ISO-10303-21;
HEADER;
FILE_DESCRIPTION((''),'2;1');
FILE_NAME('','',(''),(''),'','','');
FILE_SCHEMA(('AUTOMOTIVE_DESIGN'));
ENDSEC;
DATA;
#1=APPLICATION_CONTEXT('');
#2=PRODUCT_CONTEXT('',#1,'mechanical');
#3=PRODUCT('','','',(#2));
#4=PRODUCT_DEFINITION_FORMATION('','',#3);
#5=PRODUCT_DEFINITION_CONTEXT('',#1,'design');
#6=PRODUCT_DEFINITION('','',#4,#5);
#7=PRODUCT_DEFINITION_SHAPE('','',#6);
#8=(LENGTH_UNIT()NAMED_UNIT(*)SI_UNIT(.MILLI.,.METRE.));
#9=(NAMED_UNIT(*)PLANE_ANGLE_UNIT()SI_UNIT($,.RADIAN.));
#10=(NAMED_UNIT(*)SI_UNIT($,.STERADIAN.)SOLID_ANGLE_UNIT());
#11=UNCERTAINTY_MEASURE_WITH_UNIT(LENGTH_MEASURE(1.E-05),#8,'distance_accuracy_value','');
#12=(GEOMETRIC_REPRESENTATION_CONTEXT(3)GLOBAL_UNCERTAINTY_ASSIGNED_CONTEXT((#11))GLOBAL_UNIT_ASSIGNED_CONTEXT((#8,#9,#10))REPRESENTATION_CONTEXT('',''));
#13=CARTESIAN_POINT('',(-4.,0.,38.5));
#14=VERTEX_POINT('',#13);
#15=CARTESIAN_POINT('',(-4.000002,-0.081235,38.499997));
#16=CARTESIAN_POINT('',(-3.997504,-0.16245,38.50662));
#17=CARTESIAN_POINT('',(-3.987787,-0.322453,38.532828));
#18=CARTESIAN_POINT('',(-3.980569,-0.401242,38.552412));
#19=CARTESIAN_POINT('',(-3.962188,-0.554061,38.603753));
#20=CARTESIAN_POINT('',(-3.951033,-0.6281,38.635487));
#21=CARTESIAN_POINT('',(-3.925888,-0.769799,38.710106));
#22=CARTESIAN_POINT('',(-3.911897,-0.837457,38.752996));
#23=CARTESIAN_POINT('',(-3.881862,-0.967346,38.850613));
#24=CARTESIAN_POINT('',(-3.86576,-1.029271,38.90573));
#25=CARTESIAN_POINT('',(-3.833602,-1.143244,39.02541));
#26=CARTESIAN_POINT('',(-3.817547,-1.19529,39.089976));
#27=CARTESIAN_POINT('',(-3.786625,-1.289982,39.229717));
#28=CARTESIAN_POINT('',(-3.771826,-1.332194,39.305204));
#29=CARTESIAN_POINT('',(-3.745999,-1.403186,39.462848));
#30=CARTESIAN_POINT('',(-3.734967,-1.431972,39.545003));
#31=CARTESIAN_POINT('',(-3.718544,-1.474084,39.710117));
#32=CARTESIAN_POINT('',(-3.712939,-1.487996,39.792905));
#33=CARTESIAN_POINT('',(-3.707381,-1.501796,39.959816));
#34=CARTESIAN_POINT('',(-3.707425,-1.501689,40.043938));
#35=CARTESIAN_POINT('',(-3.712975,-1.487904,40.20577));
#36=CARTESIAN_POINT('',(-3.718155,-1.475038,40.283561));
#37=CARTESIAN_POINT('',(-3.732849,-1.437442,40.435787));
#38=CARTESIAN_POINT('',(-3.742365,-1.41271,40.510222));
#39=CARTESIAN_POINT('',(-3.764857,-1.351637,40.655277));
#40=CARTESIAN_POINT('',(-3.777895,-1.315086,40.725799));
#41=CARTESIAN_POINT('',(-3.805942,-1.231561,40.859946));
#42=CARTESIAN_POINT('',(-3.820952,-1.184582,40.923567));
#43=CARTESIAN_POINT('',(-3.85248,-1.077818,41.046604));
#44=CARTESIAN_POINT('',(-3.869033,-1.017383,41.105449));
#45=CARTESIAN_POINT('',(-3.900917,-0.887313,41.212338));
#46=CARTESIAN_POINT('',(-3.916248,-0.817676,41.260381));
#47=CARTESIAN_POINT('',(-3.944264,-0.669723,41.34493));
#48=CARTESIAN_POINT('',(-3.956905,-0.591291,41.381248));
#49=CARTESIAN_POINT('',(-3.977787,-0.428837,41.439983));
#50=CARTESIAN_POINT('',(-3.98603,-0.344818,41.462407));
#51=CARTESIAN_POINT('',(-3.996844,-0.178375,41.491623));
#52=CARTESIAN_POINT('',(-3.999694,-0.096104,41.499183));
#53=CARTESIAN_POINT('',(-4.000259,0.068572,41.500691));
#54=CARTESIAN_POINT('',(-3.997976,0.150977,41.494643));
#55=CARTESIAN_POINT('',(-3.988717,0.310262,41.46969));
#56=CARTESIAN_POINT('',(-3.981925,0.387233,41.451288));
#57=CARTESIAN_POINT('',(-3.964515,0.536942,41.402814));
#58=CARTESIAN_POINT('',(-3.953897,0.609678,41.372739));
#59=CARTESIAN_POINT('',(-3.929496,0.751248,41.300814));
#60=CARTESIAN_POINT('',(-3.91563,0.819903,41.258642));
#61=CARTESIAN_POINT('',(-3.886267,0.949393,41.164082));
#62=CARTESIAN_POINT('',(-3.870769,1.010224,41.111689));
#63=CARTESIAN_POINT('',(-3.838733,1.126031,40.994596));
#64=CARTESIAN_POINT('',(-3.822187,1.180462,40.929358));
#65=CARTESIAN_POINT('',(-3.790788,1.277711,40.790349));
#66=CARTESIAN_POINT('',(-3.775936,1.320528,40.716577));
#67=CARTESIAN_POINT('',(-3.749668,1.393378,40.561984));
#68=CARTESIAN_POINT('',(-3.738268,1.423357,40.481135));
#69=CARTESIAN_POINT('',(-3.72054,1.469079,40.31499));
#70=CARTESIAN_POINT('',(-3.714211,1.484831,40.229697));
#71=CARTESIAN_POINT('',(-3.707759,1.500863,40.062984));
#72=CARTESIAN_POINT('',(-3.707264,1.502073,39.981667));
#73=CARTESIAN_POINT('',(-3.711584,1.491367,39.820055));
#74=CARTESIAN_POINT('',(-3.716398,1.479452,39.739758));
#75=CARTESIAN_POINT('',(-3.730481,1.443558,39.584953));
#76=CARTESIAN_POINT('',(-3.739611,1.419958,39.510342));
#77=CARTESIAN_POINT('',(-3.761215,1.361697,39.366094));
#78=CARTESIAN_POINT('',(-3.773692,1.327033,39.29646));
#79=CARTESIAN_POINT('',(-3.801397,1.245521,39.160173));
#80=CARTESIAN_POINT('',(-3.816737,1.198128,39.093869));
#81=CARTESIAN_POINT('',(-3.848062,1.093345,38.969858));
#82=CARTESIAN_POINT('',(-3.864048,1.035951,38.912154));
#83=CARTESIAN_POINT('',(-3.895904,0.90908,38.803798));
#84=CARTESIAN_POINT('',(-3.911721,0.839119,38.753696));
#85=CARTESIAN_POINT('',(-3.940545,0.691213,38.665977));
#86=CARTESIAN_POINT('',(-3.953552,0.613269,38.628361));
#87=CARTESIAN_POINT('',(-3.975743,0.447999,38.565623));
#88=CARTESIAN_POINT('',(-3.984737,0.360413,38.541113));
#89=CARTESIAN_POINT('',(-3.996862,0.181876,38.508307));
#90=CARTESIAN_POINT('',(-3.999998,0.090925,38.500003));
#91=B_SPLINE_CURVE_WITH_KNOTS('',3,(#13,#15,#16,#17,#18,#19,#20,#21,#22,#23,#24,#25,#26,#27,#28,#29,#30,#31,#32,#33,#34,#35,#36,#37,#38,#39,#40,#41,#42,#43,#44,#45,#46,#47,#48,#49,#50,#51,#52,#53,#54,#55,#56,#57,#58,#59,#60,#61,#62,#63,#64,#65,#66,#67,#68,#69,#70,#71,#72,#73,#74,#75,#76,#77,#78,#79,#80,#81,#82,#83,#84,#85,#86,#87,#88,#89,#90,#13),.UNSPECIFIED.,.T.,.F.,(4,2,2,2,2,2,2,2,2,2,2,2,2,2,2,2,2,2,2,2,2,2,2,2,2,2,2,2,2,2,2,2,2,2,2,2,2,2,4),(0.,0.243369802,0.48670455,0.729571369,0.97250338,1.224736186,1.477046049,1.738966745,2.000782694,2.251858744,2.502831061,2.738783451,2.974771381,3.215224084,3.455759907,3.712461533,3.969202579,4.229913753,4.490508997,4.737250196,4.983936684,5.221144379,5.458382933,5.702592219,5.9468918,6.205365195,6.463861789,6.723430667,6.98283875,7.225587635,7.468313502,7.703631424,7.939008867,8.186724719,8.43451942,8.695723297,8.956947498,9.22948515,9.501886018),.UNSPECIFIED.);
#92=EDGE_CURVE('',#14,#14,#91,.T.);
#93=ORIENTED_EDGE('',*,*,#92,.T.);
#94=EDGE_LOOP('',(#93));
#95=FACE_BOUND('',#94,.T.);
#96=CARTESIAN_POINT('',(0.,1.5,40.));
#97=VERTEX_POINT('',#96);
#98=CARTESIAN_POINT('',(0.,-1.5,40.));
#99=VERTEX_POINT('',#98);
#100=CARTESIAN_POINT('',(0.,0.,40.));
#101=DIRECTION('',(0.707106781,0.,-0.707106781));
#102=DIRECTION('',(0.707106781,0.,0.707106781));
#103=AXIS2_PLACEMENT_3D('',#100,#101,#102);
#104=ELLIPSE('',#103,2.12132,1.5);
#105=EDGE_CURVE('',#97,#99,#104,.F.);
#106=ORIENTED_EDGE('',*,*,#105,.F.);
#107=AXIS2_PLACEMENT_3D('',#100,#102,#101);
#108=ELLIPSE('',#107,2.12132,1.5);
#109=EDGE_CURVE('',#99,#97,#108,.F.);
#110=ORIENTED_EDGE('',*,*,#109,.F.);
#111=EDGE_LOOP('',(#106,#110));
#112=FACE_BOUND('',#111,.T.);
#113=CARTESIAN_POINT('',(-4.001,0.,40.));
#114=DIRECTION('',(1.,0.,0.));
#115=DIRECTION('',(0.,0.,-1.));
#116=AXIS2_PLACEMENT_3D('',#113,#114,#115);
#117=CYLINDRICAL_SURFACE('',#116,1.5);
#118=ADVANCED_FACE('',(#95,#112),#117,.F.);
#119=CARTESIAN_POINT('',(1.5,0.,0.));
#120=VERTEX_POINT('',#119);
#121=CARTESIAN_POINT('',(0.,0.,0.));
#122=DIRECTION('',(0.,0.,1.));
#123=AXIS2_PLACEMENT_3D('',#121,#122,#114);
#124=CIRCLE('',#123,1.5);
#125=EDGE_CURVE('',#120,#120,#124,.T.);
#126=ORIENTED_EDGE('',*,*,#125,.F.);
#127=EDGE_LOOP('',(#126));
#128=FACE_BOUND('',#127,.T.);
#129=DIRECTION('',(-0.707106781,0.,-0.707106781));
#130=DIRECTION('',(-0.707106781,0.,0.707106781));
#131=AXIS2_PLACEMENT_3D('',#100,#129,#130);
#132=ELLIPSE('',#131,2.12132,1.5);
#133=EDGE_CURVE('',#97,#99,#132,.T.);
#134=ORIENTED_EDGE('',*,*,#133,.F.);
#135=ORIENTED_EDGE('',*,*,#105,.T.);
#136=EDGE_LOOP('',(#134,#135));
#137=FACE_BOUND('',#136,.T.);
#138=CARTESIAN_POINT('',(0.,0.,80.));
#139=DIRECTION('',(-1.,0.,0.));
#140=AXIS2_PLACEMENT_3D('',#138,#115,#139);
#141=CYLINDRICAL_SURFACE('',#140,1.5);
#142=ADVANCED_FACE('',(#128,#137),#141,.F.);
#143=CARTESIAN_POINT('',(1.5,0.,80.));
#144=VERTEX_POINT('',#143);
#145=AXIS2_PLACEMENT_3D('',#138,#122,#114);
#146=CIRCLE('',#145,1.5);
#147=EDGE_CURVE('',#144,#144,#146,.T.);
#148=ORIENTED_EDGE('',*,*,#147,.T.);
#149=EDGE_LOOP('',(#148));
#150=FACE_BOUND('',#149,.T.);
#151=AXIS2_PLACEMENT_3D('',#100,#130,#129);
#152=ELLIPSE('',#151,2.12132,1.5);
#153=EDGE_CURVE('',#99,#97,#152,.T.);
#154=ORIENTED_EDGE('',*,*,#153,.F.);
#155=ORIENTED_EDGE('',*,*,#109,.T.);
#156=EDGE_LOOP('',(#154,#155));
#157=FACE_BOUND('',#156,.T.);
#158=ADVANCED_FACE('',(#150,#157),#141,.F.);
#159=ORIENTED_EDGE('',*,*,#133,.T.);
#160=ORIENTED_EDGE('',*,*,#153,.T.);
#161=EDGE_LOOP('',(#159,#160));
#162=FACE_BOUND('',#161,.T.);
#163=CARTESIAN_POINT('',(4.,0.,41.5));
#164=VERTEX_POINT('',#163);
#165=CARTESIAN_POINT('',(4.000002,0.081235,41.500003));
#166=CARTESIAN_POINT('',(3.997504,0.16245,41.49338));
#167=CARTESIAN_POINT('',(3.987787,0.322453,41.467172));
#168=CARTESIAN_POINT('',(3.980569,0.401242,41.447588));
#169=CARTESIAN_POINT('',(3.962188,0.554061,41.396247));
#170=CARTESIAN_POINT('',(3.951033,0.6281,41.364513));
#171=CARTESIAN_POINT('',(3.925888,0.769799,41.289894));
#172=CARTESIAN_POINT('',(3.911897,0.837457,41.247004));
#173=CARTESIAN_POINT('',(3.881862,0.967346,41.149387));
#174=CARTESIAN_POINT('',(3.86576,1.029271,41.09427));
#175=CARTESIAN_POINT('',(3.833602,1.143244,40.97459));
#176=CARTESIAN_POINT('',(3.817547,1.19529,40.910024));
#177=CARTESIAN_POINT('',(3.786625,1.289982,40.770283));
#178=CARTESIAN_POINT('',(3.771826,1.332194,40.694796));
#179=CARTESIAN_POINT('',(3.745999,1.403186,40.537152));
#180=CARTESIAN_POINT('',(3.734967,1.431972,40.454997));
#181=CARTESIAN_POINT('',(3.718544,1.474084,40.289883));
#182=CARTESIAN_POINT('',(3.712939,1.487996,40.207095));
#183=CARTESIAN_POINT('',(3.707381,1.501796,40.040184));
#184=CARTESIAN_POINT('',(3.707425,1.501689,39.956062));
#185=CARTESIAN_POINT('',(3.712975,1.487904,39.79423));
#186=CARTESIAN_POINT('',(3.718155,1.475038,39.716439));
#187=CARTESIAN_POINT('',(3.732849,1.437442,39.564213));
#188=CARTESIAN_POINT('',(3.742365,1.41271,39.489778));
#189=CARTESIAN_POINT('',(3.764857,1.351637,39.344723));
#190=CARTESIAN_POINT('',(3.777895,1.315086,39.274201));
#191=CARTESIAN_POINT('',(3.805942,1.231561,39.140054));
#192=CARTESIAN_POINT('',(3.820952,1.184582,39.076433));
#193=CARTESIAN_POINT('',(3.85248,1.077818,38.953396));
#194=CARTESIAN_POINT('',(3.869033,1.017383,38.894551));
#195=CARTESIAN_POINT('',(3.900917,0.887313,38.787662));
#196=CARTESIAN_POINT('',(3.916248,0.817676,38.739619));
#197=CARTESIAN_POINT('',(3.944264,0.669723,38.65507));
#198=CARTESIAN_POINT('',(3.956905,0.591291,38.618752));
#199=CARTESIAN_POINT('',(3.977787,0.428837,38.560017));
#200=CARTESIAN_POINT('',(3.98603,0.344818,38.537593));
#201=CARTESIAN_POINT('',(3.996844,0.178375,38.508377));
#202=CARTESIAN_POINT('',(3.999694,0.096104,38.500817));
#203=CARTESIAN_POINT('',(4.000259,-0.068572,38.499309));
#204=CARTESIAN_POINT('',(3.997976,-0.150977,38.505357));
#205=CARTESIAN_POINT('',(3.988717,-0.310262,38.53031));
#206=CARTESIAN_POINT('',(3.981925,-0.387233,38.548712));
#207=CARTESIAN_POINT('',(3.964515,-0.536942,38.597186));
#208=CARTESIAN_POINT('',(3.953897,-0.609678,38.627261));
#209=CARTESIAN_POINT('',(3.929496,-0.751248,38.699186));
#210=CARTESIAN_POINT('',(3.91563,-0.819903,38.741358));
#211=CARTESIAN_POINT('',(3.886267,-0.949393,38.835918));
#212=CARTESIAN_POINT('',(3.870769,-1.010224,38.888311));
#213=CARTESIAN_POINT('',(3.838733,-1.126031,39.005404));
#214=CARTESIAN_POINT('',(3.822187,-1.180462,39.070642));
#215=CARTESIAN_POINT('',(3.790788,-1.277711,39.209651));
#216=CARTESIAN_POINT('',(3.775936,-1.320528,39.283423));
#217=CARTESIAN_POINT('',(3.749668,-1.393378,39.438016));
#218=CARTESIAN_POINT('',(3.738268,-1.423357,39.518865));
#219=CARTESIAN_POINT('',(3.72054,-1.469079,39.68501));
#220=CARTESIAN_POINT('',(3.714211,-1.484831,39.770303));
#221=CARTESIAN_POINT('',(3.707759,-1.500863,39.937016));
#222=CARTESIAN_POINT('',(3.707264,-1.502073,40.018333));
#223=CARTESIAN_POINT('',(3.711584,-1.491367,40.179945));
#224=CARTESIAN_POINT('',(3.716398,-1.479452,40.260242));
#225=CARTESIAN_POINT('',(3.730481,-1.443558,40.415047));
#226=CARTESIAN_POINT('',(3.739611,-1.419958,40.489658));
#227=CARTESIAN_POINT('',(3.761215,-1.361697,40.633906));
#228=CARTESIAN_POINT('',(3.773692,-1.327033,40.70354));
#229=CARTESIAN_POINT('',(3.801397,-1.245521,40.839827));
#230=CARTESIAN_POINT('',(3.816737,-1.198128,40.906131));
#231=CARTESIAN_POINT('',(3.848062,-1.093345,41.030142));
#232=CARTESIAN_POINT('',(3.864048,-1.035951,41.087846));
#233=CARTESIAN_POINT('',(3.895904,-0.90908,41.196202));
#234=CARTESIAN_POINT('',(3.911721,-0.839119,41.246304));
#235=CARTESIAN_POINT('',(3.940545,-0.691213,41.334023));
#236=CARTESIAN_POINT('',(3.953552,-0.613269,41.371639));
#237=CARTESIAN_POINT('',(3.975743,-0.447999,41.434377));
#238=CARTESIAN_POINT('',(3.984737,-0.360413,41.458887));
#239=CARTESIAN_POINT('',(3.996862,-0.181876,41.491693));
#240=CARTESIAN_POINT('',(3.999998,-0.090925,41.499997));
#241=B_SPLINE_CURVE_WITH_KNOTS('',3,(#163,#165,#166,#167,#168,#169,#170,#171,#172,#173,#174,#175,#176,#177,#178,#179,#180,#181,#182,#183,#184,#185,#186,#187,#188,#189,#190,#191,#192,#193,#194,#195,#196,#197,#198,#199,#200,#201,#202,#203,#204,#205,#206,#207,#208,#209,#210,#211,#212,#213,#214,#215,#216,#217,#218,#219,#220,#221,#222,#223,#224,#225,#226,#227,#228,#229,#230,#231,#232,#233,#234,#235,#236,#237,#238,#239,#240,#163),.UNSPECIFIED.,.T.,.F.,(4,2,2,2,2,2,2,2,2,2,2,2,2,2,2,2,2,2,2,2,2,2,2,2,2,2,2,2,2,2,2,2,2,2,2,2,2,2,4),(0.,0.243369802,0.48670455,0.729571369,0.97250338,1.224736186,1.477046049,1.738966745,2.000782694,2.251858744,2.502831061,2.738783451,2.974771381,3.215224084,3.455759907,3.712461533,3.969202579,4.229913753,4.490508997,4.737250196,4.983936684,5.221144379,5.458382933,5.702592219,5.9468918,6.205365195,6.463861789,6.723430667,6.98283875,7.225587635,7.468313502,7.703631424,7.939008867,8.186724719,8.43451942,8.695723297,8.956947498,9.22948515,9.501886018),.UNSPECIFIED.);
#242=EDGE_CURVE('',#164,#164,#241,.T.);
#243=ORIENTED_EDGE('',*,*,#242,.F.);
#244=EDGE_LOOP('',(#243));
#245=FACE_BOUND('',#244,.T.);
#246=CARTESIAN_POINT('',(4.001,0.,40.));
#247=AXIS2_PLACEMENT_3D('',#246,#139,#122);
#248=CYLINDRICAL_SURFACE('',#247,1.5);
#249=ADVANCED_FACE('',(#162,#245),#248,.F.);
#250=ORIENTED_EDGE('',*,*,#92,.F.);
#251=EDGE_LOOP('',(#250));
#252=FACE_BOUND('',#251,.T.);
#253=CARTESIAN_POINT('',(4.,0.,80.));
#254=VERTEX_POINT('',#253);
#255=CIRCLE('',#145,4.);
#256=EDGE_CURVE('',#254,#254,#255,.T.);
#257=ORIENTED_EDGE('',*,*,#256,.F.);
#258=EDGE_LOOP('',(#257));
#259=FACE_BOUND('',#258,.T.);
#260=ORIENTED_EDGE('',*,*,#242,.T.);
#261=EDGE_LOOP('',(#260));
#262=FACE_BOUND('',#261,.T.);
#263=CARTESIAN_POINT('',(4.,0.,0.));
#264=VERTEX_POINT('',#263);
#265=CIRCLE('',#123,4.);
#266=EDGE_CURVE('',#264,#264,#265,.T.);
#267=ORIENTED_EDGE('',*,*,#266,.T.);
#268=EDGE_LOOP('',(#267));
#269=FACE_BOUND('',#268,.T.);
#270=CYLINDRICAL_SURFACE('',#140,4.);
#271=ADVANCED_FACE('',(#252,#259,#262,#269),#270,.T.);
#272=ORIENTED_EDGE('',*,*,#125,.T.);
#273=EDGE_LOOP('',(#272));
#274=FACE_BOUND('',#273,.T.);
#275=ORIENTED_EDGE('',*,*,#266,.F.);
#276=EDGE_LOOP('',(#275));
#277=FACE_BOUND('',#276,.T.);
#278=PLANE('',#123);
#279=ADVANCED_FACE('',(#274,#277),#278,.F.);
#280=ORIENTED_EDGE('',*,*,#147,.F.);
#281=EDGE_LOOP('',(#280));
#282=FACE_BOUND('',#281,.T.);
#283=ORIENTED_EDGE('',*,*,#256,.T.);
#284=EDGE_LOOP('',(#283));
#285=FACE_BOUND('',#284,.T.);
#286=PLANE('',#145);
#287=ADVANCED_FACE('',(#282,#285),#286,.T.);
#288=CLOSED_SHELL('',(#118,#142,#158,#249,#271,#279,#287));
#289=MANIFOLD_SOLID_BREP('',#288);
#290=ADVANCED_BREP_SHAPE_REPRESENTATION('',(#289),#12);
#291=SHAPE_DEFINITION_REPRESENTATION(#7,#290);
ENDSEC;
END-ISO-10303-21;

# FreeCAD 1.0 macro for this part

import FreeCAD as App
import Part
import Sketcher
from FreeCAD import Vector

doc = App.newDocument("Part")
params = doc.addObject("Spreadsheet::Sheet", "Params")
for row, (alias, value) in enumerate([
    ("sketch1_diameter", "8 mm"),
    ("sketch1_diameter2", "3 mm"),
    ("pad1_length", "80 mm"),
    ("sketch2_diameter", "3 mm"),
    ("pocket1_length", "4 mm"),
    ("sketch3_diameter", "3 mm"),
    ("pocket2_length", "4 mm"),
], start=1):
    params.set(f"A{row}", alias)
    params.set(f"B{row}", "=" + value)
    params.setAlias(f"B{row}", alias)

body = doc.addObject("PartDesign::Body", "Body")

# Sketch on XY plane
sketch1 = body.newObject("Sketcher::SketchObject", "Sketch")
sketch1.AttachmentSupport = (doc.getObject("XY_Plane"), [""])
sketch1.MapMode = "FlatFace"
sketch1.addGeometry(Part.Circle(Vector(0, 0, 0), Vector(0, 0, 1), 4), False)
sketch1.addGeometry(Part.Circle(Vector(0, 0, 0), Vector(0, 0, 1), 1.5), False)
sketch1.addConstraint(Sketcher.Constraint("Coincident", 0, 3, -1, 1))
sketch1.addConstraint(Sketcher.Constraint("Coincident", 1, 3, -1, 1))
sketch1.addConstraint(Sketcher.Constraint("Diameter", 0, 8.0))
sketch1.addConstraint(Sketcher.Constraint("Diameter", 1, 3.0))
sketch1.setExpression("Constraints[2]", "Params.sketch1_diameter")
sketch1.setExpression("Constraints[3]", "Params.sketch1_diameter2")
pad1 = body.newObject("PartDesign::Pad", "Pad")
pad1.Profile = sketch1
pad1.setExpression("Length", "Params.pad1_length")

# Sketch on YZ plane
sketch2 = body.newObject("Sketcher::SketchObject", "Sketch001")
sketch2.AttachmentSupport = (doc.getObject("YZ_Plane"), [""])
sketch2.MapMode = "FlatFace"
sketch2.addGeometry(Part.Circle(Vector(0, 40, 0), Vector(0, 0, 1), 1.5), False)
sketch2.addConstraint(Sketcher.Constraint("PointOnObject", 0, 3, -2))
sketch2.addConstraint(Sketcher.Constraint("Diameter", 0, 3.0))
sketch2.addConstraint(Sketcher.Constraint("DistanceY", -1, 1, 0, 3, 40.0))
sketch2.setExpression("Constraints[1]", "Params.sketch2_diameter")
pocket1 = body.newObject("PartDesign::Pocket", "Pocket")
pocket1.Profile = sketch2
pocket1.setExpression("Length", "Params.pocket1_length")

# Sketch on YZ plane
sketch3 = body.newObject("Sketcher::SketchObject", "Sketch002")
sketch3.AttachmentSupport = (doc.getObject("YZ_Plane"), [""])
sketch3.MapMode = "FlatFace"
sketch3.addGeometry(Part.Circle(Vector(0, 40, 0), Vector(0, 0, 1), 1.5), False)
sketch3.addConstraint(Sketcher.Constraint("PointOnObject", 0, 3, -2))
sketch3.addConstraint(Sketcher.Constraint("Diameter", 0, 3.0))
sketch3.addConstraint(Sketcher.Constraint("DistanceY", -1, 1, 0, 3, 40.0))
sketch3.setExpression("Constraints[1]", "Params.sketch3_diameter")
pocket2 = body.newObject("PartDesign::Pocket", "Pocket001")
pocket2.Profile = sketch3
pocket2.setExpression("Length", "Params.pocket2_length")
pocket2.Reversed = True

doc.recompute()
